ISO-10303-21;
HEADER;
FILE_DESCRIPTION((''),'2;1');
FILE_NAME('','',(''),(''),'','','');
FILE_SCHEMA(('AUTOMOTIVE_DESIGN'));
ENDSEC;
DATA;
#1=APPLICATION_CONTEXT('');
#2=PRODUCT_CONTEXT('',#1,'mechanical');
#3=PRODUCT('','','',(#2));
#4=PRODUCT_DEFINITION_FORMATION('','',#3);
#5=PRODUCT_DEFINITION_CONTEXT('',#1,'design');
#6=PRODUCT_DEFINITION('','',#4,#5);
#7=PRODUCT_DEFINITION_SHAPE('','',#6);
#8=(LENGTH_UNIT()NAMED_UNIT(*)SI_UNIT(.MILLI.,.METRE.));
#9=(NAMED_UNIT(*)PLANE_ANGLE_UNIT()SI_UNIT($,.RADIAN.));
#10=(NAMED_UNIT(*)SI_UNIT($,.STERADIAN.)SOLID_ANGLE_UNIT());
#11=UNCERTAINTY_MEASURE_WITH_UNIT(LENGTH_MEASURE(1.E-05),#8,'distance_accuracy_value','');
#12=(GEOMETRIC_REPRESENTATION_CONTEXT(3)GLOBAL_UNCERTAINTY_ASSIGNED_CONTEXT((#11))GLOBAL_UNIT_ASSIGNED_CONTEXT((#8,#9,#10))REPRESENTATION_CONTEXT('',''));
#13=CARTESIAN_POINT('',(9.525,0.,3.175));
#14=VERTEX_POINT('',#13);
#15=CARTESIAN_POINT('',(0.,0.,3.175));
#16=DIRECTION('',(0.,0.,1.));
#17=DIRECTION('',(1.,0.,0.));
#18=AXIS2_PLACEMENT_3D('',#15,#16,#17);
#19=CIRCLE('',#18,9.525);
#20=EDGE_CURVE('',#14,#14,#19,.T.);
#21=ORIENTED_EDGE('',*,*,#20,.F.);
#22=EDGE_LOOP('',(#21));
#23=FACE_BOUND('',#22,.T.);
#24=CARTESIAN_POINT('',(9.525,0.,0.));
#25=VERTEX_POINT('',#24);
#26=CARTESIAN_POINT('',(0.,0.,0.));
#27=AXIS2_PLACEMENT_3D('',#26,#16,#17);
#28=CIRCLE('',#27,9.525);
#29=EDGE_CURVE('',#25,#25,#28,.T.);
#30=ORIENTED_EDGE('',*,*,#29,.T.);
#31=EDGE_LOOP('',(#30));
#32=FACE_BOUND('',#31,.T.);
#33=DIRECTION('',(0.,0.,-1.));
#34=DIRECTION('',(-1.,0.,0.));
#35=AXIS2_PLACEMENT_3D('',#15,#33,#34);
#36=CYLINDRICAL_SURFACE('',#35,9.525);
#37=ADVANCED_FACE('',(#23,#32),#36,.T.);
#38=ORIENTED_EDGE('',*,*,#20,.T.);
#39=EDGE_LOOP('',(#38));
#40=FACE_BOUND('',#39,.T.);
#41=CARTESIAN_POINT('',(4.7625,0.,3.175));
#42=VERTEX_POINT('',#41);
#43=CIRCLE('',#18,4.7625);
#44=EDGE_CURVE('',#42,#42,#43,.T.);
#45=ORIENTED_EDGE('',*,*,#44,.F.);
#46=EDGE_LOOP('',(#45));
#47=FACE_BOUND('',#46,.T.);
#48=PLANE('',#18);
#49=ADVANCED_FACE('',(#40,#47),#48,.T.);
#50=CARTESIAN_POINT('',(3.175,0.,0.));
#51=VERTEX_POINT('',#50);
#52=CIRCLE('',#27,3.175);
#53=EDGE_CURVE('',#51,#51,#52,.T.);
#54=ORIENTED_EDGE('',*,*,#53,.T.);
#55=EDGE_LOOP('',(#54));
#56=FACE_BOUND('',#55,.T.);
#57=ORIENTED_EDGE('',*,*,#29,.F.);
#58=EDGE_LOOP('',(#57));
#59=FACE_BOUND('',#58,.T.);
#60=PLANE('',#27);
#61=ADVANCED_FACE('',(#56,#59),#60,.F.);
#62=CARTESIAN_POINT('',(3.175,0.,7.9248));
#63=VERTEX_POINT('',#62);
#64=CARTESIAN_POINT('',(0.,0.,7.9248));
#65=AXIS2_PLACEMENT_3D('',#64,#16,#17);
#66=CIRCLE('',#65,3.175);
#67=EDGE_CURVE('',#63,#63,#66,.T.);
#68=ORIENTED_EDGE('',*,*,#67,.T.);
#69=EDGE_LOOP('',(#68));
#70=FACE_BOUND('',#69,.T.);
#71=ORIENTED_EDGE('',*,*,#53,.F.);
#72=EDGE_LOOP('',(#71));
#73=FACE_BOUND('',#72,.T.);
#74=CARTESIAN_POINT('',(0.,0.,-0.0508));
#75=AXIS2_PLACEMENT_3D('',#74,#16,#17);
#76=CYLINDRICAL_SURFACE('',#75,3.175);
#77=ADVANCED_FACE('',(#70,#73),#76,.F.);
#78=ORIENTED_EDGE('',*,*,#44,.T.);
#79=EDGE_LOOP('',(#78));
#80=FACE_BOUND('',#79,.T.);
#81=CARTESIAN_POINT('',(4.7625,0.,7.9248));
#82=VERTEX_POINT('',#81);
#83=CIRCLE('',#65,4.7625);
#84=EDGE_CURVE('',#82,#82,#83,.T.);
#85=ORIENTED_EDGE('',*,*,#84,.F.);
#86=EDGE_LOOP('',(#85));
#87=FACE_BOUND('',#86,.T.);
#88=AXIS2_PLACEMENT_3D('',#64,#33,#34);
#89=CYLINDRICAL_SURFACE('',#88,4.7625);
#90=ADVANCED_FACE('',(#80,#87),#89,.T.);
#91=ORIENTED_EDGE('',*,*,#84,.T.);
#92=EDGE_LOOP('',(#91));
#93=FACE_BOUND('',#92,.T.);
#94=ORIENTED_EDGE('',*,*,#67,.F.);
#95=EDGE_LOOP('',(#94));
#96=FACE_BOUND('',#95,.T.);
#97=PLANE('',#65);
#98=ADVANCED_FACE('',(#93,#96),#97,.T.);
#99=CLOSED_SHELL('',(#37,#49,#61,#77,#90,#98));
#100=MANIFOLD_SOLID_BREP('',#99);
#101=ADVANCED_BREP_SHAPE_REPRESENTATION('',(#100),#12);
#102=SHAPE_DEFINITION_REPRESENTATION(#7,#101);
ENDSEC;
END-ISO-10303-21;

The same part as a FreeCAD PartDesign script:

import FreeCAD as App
import Part
import Sketcher
from FreeCAD import Vector
Q = App.Units.Quantity

doc = App.newDocument("Part")
params = doc.addObject("Spreadsheet::Sheet", "Params")
for row, (alias, value) in enumerate([
    ("sketch1_diameter", "0.75 in"),
    ("pad1_length", "0.125 in"),
    ("sketch2_diameter", "0.375 in"),
    ("pad2_length", "0.187 in"),
    ("sketch3_diameter", "0.25 in"),
    ("pocket1_length", "0.314 in"),
], start=1):
    params.set(f"A{row}", alias)
    params.set(f"B{row}", "=" + value)
    params.setAlias(f"B{row}", alias)

body = doc.addObject("PartDesign::Body", "Body")

# Sketch on XY plane
sketch1 = body.newObject("Sketcher::SketchObject", "Sketch")
sketch1.AttachmentSupport = (doc.getObject("XY_Plane"), [""])
sketch1.MapMode = "FlatFace"
sketch1.addGeometry(Part.Circle(Vector(0, 0, 0), Vector(0, 0, 1), 9.525), False)
sketch1.addConstraint([
    Sketcher.Constraint("Coincident", 0, 3, -1, 1),
    Sketcher.Constraint("Diameter", 0, Q("0.75 in")),
])
sketch1.setExpression("Constraints[1]", "Params.sketch1_diameter")
pad1 = body.newObject("PartDesign::Pad", "Pad")
pad1.Profile = sketch1
pad1.setExpression("Length", "Params.pad1_length")

# Sketch on XY plane
sketch2 = body.newObject("Sketcher::SketchObject", "Sketch001")
sketch2.AttachmentSupport = (doc.getObject("XY_Plane"), [""])
sketch2.MapMode = "FlatFace"
sketch2.AttachmentOffset = App.Placement(Vector(0, 0, 0.125 * 25.4), App.Rotation())
sketch2.addGeometry(Part.Circle(Vector(0, 0, 0), Vector(0, 0, 1), 4.7625), False)
sketch2.addConstraint([
    Sketcher.Constraint("Coincident", 0, 3, -1, 1),
    Sketcher.Constraint("Diameter", 0, Q("0.375 in")),
])
sketch2.setExpression("Constraints[1]", "Params.sketch2_diameter")
pad2 = body.newObject("PartDesign::Pad", "Pad001")
pad2.Profile = sketch2
pad2.setExpression("Length", "Params.pad2_length")

# Sketch on XY plane
sketch3 = body.newObject("Sketcher::SketchObject", "Sketch002")
sketch3.AttachmentSupport = (doc.getObject("XY_Plane"), [""])
sketch3.MapMode = "FlatFace"
sketch3.AttachmentOffset = App.Placement(Vector(0, 0, 0.312 * 25.4), App.Rotation())
sketch3.addGeometry(Part.Circle(Vector(0, 0, 0), Vector(0, 0, 1), 3.175), False)
sketch3.addConstraint([
    Sketcher.Constraint("Coincident", 0, 3, -1, 1),
    Sketcher.Constraint("Diameter", 0, Q("0.25 in")),
])
sketch3.setExpression("Constraints[1]", "Params.sketch3_diameter")
pocket1 = body.newObject("PartDesign::Pocket", "Pocket")
pocket1.Profile = sketch3
pocket1.setExpression("Length", "Params.pocket1_length")

doc.recompute()
